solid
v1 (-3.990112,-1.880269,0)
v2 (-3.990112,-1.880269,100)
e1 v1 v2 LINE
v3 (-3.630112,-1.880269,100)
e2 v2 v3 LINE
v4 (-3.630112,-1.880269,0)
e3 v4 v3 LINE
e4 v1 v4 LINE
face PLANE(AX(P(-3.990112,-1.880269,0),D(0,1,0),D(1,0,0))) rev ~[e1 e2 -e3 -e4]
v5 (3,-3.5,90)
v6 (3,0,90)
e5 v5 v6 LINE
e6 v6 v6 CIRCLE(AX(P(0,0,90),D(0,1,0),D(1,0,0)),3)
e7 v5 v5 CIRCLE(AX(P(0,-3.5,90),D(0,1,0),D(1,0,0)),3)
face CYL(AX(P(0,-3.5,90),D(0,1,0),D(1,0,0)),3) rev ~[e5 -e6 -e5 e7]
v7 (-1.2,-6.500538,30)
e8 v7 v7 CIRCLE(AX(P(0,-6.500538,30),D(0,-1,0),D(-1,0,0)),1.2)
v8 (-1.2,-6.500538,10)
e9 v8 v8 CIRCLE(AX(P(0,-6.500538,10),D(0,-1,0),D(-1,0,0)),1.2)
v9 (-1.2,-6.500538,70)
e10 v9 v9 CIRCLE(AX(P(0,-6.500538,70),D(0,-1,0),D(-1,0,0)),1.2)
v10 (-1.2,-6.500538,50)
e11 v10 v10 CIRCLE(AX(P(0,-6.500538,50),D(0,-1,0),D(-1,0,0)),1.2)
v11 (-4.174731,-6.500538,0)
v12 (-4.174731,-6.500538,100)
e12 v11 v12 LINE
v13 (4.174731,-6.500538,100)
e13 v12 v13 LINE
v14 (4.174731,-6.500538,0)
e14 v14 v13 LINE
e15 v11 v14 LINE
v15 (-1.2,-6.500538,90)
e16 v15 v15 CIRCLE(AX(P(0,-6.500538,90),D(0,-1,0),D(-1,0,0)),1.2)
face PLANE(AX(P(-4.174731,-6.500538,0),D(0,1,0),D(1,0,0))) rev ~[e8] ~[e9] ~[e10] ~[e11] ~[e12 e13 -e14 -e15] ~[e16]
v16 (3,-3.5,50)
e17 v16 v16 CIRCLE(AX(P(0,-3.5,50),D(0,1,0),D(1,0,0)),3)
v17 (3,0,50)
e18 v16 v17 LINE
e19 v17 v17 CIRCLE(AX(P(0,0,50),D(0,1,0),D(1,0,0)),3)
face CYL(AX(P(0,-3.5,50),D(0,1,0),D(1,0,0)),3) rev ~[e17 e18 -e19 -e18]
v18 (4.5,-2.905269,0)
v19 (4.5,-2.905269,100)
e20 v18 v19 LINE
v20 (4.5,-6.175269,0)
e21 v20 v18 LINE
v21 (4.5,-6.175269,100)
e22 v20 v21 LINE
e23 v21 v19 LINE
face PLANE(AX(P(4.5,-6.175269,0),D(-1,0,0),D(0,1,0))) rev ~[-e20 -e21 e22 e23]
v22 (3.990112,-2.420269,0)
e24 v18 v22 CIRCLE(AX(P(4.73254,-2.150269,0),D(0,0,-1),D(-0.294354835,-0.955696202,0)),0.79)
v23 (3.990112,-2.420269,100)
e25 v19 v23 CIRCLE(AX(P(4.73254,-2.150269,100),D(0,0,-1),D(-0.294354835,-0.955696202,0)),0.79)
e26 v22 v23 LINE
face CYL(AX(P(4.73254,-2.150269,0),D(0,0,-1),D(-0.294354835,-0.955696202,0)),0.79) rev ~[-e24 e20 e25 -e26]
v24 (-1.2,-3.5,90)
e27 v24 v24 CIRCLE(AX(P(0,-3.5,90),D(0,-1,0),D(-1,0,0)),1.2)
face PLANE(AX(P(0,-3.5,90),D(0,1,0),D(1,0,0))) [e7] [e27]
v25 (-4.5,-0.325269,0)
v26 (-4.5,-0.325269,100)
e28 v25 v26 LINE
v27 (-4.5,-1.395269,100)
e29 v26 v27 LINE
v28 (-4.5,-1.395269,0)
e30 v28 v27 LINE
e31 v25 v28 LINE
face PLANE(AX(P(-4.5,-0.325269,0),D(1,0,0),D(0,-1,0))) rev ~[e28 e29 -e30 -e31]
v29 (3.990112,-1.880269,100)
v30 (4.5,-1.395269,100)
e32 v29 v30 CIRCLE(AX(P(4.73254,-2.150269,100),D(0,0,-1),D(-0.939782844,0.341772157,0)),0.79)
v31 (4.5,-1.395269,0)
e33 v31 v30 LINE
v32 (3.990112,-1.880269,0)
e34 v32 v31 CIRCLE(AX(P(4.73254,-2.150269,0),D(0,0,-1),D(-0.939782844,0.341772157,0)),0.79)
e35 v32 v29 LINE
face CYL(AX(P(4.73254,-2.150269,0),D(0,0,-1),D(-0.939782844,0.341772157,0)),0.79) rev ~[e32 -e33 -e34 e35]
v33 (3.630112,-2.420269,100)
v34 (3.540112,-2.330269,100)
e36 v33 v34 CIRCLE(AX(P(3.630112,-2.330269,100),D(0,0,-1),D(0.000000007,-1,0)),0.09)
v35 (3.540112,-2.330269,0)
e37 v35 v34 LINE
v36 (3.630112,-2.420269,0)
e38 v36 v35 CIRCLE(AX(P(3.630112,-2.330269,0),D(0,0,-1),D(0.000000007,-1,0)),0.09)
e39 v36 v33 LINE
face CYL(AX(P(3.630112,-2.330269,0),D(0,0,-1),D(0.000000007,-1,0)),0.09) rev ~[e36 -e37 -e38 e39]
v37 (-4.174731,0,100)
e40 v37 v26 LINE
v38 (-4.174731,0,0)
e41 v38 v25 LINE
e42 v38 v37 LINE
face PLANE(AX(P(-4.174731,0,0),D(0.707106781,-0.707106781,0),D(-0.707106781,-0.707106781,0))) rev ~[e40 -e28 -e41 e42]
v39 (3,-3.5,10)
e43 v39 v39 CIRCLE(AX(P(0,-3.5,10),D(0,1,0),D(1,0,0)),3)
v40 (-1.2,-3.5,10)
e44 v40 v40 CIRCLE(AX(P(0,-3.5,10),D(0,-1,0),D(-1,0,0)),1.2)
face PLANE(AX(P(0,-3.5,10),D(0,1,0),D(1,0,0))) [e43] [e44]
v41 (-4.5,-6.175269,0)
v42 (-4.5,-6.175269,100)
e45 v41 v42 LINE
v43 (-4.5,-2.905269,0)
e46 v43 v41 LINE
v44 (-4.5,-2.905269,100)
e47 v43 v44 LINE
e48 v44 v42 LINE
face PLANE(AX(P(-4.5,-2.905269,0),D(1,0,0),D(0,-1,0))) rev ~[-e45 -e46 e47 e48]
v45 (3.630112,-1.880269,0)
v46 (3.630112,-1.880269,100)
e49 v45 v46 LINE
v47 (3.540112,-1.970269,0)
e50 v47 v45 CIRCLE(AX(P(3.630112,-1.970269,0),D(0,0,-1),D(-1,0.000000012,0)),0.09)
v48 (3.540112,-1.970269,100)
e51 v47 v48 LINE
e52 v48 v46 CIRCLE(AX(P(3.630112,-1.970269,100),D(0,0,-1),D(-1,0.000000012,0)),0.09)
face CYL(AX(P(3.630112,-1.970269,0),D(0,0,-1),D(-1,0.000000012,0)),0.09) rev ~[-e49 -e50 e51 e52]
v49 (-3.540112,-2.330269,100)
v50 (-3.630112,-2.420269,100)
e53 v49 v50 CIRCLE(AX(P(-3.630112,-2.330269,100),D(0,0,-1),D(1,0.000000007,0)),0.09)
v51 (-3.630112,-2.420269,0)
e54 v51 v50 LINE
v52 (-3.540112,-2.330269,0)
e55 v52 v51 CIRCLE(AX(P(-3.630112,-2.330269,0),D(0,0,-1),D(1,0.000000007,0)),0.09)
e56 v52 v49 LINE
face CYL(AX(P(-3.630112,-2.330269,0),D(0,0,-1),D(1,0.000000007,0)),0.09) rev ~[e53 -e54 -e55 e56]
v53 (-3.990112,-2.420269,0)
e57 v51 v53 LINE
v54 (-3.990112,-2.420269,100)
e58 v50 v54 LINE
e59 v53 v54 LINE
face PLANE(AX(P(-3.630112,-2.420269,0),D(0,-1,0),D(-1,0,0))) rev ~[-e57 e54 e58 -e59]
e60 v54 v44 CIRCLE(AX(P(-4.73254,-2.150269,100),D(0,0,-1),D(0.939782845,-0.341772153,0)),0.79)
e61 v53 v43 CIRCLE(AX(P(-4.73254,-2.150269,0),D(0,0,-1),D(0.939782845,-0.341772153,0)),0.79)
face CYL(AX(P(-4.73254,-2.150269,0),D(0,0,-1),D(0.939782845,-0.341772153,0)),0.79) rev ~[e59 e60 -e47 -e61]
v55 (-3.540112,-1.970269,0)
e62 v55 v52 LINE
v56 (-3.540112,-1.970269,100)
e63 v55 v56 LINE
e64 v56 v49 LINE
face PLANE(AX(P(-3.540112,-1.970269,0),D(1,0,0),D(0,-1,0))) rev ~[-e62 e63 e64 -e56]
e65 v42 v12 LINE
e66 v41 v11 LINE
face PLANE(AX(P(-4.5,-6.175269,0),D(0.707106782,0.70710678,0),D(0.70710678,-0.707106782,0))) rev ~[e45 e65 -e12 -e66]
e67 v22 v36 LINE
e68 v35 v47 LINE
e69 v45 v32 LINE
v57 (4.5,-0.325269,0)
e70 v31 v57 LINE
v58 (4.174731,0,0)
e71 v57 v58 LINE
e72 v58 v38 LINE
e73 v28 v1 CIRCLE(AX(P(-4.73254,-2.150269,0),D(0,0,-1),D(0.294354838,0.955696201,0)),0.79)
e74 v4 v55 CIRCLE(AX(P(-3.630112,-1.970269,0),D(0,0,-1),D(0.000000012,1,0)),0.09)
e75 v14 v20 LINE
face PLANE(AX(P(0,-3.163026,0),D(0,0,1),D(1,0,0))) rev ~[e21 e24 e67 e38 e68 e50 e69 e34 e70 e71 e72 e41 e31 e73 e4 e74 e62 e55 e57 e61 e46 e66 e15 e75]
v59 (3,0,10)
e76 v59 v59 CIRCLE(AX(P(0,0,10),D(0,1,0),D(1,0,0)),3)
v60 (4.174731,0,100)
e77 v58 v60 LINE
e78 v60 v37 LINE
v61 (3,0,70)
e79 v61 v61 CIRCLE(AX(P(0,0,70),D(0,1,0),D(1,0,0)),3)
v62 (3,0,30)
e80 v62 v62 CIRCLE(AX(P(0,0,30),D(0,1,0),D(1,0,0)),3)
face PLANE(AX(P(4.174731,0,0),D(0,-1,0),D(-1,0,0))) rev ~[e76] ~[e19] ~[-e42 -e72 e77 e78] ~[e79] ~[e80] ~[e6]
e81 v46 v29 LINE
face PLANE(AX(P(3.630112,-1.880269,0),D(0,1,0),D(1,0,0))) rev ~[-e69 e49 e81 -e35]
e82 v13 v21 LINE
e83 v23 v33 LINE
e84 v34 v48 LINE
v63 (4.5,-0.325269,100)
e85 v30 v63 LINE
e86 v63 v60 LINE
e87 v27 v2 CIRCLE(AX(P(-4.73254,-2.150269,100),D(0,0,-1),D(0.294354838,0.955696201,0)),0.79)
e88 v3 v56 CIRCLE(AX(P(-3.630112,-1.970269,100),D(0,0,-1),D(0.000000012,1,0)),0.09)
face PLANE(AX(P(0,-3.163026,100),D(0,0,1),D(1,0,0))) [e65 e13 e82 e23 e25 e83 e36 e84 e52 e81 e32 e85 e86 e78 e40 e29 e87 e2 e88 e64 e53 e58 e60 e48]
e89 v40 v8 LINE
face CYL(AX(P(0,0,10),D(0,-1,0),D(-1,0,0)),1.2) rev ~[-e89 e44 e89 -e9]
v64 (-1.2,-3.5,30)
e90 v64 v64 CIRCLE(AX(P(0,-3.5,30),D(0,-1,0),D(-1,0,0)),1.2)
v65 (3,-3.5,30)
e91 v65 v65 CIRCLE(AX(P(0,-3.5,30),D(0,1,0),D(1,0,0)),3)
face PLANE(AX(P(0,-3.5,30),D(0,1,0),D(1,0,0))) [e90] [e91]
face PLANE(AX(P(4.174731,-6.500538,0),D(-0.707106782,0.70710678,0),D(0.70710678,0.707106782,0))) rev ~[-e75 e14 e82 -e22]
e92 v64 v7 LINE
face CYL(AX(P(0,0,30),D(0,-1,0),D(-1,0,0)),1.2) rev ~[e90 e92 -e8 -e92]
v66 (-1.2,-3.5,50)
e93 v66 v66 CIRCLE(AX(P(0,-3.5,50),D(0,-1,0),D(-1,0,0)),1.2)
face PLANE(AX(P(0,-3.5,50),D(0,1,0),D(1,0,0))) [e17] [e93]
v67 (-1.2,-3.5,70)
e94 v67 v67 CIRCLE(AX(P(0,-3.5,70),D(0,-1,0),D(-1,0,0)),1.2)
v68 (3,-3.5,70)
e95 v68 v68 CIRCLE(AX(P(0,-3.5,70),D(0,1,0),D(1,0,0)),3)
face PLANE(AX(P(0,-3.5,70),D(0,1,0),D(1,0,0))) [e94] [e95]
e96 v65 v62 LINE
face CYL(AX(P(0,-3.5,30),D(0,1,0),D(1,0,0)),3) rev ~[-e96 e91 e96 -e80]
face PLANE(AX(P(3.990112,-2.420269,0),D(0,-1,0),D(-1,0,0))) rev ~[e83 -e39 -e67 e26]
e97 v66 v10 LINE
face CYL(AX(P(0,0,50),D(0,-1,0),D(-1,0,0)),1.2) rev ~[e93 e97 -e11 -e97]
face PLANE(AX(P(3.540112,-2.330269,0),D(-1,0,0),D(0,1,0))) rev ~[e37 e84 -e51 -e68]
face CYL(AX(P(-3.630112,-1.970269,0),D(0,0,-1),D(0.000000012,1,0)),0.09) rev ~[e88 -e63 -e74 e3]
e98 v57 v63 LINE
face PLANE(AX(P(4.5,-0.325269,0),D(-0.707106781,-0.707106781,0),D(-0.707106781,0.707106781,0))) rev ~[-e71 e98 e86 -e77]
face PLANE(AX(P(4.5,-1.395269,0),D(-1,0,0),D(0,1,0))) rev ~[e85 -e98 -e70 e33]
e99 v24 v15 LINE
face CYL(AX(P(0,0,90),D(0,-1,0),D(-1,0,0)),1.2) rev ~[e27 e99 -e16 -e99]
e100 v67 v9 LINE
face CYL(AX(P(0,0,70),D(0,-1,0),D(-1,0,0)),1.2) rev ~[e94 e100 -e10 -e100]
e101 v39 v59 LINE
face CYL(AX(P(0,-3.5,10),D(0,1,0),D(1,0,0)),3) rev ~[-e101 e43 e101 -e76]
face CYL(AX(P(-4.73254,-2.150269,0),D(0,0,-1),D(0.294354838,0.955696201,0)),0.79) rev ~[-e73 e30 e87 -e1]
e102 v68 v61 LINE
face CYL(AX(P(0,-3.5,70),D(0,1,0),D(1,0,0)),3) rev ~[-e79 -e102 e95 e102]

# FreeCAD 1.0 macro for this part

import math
import FreeCAD as App
import Part
import Sketcher

doc = App.newDocument("Part")
body = doc.addObject("PartDesign::Body", "Body")

# Sketch on XY plane
sketch1 = body.newObject("Sketcher::SketchObject", "Sketch")
sketch1.AttachmentSupport = (doc.getObject("XY_Plane"), [""])
sketch1.MapMode = "FlatFace"
sketch1.addGeometry([
    Part.LineSegment(App.Vector(-4.5, -2.91, 0), App.Vector(-4.5, -6.18, 0)),  # 0
    Part.LineSegment(App.Vector(-4.5, -6.18, 0), App.Vector(-4.17, -6.5, 0)),  # 1
    Part.LineSegment(App.Vector(-4.17, -6.5, 0), App.Vector(4.17, -6.5, 0)),  # 2
    Part.LineSegment(App.Vector(4.17, -6.5, 0), App.Vector(4.5, -6.18, 0)),  # 3
    Part.LineSegment(App.Vector(4.5, -6.18, 0), App.Vector(4.5, -2.91, 0)),  # 4
    Part.ArcOfCircle(Part.Circle(App.Vector(4.73, -2.15, 0), App.Vector(0, 0, 1), 0.79), math.radians(-160), math.radians(-107)),  # 5
    Part.LineSegment(App.Vector(3.99, -2.42, 0), App.Vector(3.63, -2.42, 0)),  # 6
    Part.ArcOfCircle(Part.Circle(App.Vector(3.63, -2.33, 0), App.Vector(0, 0, 1), 0.09), math.radians(180), math.radians(270)),  # 7
    Part.LineSegment(App.Vector(3.54, -2.33, 0), App.Vector(3.54, -1.97, 0)),  # 8
    Part.ArcOfCircle(Part.Circle(App.Vector(3.63, -1.97, 0), App.Vector(0, 0, 1), 0.09), math.radians(90), math.radians(180)),  # 9
    Part.LineSegment(App.Vector(3.63, -1.88, 0), App.Vector(3.99, -1.88, 0)),  # 10
    Part.ArcOfCircle(Part.Circle(App.Vector(4.73, -2.15, 0), App.Vector(0, 0, 1), 0.79), math.radians(107), math.radians(160)),  # 11
    Part.LineSegment(App.Vector(4.5, -1.4, 0), App.Vector(4.5, -0.33, 0)),  # 12
    Part.LineSegment(App.Vector(4.5, -0.33, 0), App.Vector(4.17, 0, 0)),  # 13
    Part.LineSegment(App.Vector(4.17, 0, 0), App.Vector(-4.17, 0, 0)),  # 14
    Part.LineSegment(App.Vector(-4.17, 0, 0), App.Vector(-4.5, -0.33, 0)),  # 15
    Part.LineSegment(App.Vector(-4.5, -0.33, 0), App.Vector(-4.5, -1.4, 0)),  # 16
    Part.ArcOfCircle(Part.Circle(App.Vector(-4.73, -2.15, 0), App.Vector(0, 0, 1), 0.79), math.radians(20), math.radians(73)),  # 17
    Part.LineSegment(App.Vector(-3.99, -1.88, 0), App.Vector(-3.63, -1.88, 0)),  # 18
    Part.ArcOfCircle(Part.Circle(App.Vector(-3.63, -1.97, 0), App.Vector(0, 0, 1), 0.09), math.radians(0), math.radians(90)),  # 19
    Part.LineSegment(App.Vector(-3.54, -1.97, 0), App.Vector(-3.54, -2.33, 0)),  # 20
    Part.ArcOfCircle(Part.Circle(App.Vector(-3.63, -2.33, 0), App.Vector(0, 0, 1), 0.09), math.radians(-90), math.radians(0)),  # 21
    Part.LineSegment(App.Vector(-3.63, -2.42, 0), App.Vector(-3.99, -2.42, 0)),  # 22
    Part.ArcOfCircle(Part.Circle(App.Vector(-4.73, -2.15, 0), App.Vector(0, 0, 1), 0.79), math.radians(-73), math.radians(-20)),  # 23
], False)
sketch1.addConstraint([
    Sketcher.Constraint("Coincident", 0, 2, 1, 1),
    Sketcher.Constraint("Coincident", 1, 2, 2, 1),
    Sketcher.Constraint("Coincident", 2, 2, 3, 1),
    Sketcher.Constraint("Coincident", 3, 2, 4, 1),
    Sketcher.Constraint("Coincident", 4, 2, 5, 2),
    Sketcher.Constraint("Coincident", 5, 1, 6, 1),
    Sketcher.Constraint("Tangent", 6, 2, 7, 2),
    Sketcher.Constraint("Tangent", 7, 1, 8, 1),
    Sketcher.Constraint("Tangent", 8, 2, 9, 2),
    Sketcher.Constraint("Tangent", 9, 1, 10, 1),
    Sketcher.Constraint("Coincident", 10, 2, 11, 2),
    Sketcher.Constraint("Coincident", 11, 1, 12, 1),
    Sketcher.Constraint("Coincident", 12, 2, 13, 1),
    Sketcher.Constraint("Coincident", 13, 2, 14, 1),
    Sketcher.Constraint("Coincident", 14, 2, 15, 1),
    Sketcher.Constraint("Coincident", 15, 2, 16, 1),
    Sketcher.Constraint("Coincident", 16, 2, 17, 2),
    Sketcher.Constraint("Coincident", 17, 1, 18, 1),
    Sketcher.Constraint("Tangent", 18, 2, 19, 2),
    Sketcher.Constraint("Tangent", 19, 1, 20, 1),
    Sketcher.Constraint("Tangent", 20, 2, 21, 2),
    Sketcher.Constraint("Tangent", 21, 1, 22, 1),
    Sketcher.Constraint("Coincident", 22, 2, 23, 2),
    Sketcher.Constraint("Coincident", 23, 1, 0, 1),
    Sketcher.Constraint("Vertical", 0),
    Sketcher.Constraint("Horizontal", 2),
    Sketcher.Constraint("Vertical", 4),
    Sketcher.Constraint("Horizontal", 6),
    Sketcher.Constraint("Vertical", 8),
    Sketcher.Constraint("Horizontal", 10),
    Sketcher.Constraint("Vertical", 12),
    Sketcher.Constraint("Horizontal", 14),
    Sketcher.Constraint("Vertical", 16),
    Sketcher.Constraint("Horizontal", 18),
    Sketcher.Constraint("Vertical", 20),
    Sketcher.Constraint("Horizontal", 22),
    Sketcher.Constraint("Coincident", 11, 3, 5, 3),
    Sketcher.Constraint("Coincident", 23, 3, 17, 3),
    Sketcher.Constraint("Equal", 7, 9),
    Sketcher.Constraint("Equal", 5, 11),
    Sketcher.Constraint("Equal", 11, 17),
    Sketcher.Constraint("Equal", 9, 19),
    Sketcher.Constraint("Equal", 19, 21),
    Sketcher.Constraint("Equal", 17, 23),
    Sketcher.Constraint("Symmetric", 13, 2, 14, 2, -1, 1),
    Sketcher.Constraint("Symmetric", 5, 3, 17, 3, -2),
    Sketcher.Constraint("Symmetric", 9, 3, 19, 3, -2),
    Sketcher.Constraint("Symmetric", 0, 2, 3, 2, -2),
    Sketcher.Constraint("Symmetric", 12, 2, 15, 2, -2),
    Sketcher.Constraint("Perpendicular", 1, 3),
    Sketcher.Constraint("Perpendicular", 3, 13),
    Sketcher.Constraint("Perpendicular", 13, 15),
    Sketcher.Constraint("Horizontal", 7, 3, 21, 3),
    Sketcher.Constraint("Vertical", 5, 1, 10, 2),
    Sketcher.Constraint("Vertical", 4, 2, 11, 1),
    Sketcher.Constraint("Vertical", 2, 2, 13, 2),
    Sketcher.Constraint("Equal", 22, 8),
    Sketcher.Constraint("Radius", 5, 0.79),
    Sketcher.Constraint("Radius", 7, 0.09),
    Sketcher.Constraint("DistanceX", 6, 2, 6, 1, 0.36),
    Sketcher.Constraint("DistanceY", 0, 2, 0, 1, 3.27),
    Sketcher.Constraint("DistanceY", 12, 1, 12, 2, 1.07),
    Sketcher.Constraint("DistanceX", 0, 2, -1, 1, 4.5),
    Sketcher.Constraint("Distance", 1, 0.46),
    Sketcher.Constraint("DistanceY", 0, 2, 21, 3, 3.845),
])
pad1 = body.newObject("PartDesign::Pad", "Pad")
pad1.Profile = sketch1
pad1.Length = 100

# Sketch on XZ plane
sketch2 = body.newObject("Sketcher::SketchObject", "Sketch001")
sketch2.AttachmentSupport = (doc.getObject("XZ_Plane"), [""])
sketch2.MapMode = "FlatFace"
sketch2.addGeometry(Part.Circle(App.Vector(0, 90, 0), App.Vector(0, 0, 1), 1.2), False)
sketch2.addConstraint([
    Sketcher.Constraint("PointOnObject", 0, 3, -2),
    Sketcher.Constraint("Diameter", 0, 2.4),
    Sketcher.Constraint("DistanceY", -1, 1, 0, 3, 90.0),
])
doc.recompute()
hole = body.newObject("PartDesign::Hole", "Hole")
hole.Profile = sketch2
hole.ThreadType = "None"
hole.Diameter = 2.4
hole.DepthType = "ThroughAll"
hole.HoleCutType = "Counterbore"
hole.HoleCutDiameter = 6
hole.HoleCutDepth = 3.5
hole.Reversed = True
doc.recompute()

linearpattern = body.newObject("PartDesign::LinearPattern", "LinearPattern")
linearpattern.Originals = [hole]
linearpattern.Direction = (doc.getObject("Z_Axis"), [""])
linearpattern.Mode = "offset"
linearpattern.Offset = 20
linearpattern.Occurrences = 5
linearpattern.Reversed = True
body.Tip = linearpattern

doc.recompute()
